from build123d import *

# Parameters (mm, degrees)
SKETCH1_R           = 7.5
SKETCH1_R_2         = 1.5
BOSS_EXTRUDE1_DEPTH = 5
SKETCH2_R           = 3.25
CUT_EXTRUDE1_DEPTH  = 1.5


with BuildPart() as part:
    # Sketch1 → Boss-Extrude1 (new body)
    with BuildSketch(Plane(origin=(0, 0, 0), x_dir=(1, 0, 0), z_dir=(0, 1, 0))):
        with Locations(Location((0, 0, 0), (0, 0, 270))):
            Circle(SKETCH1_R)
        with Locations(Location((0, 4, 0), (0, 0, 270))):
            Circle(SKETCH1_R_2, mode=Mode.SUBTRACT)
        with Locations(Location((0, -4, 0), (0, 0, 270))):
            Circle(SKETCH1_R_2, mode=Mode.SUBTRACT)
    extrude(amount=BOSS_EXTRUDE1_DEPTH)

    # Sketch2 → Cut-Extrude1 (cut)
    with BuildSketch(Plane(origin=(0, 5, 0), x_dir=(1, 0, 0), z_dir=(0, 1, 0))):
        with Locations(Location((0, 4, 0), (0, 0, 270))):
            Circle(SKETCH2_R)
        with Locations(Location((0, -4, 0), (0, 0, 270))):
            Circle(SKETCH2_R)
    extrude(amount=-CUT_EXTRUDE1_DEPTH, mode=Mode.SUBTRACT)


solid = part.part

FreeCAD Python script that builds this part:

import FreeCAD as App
import Part
import Sketcher
from FreeCAD import Vector

doc = App.newDocument("Part")
body = doc.addObject("PartDesign::Body", "Body")

sketch1 = body.newObject("Sketcher::SketchObject", "Sketch")
sketch1.AttachmentSupport = (doc.getObject("XZ_Plane"), [""])
sketch1.MapMode = "FlatFace"
sketch1.addGeometry(Part.Circle(Vector(0, 0, 0), Vector(0, 0, 1), 7.5), False)
sketch1.addGeometry(Part.Circle(Vector(0, -4, 0), Vector(0, 0, 1), 1.5), False)
sketch1.addGeometry(Part.Circle(Vector(0, 4, 0), Vector(0, 0, 1), 1.5), False)
sketch1.addConstraint(Sketcher.Constraint("Coincident", 0, 3, -1, 1))
sketch1.addConstraint(Sketcher.Constraint("Equal", 1, 2))
sketch1.addConstraint(Sketcher.Constraint("Symmetric", 1, 3, 2, 3, -1, 1))
sketch1.addConstraint(Sketcher.Constraint("PointOnObject", 1, 3, -2))
sketch1.addConstraint(Sketcher.Constraint("Diameter", 0, 15.0))
sketch1.addConstraint(Sketcher.Constraint("Diameter", 1, 3.0))
sketch1.addConstraint(Sketcher.Constraint("DistanceY", 1, 3, -1, 1, 4.0))
pad1 = body.newObject("PartDesign::Pad", "Pad")
pad1.Profile = sketch1
pad1.Length = 5
pad1.Reversed = True

sketch2 = body.newObject("Sketcher::SketchObject", "Sketch001")
sketch2.AttachmentSupport = (doc.getObject("XZ_Plane"), [""])
sketch2.MapMode = "FlatFace"
sketch2.AttachmentOffset = App.Placement(Vector(0, 0, -5), App.Rotation())
sketch2.addGeometry(Part.Circle(Vector(0, -4, 0), Vector(0, 0, 1), 3.25), False)
sketch2.addGeometry(Part.Circle(Vector(0, 4, 0), Vector(0, 0, 1), 3.25), False)
sketch2.addConstraint(Sketcher.Constraint("Equal", 0, 1))
sketch2.addConstraint(Sketcher.Constraint("Symmetric", 0, 3, 1, 3, -1, 1))
sketch2.addConstraint(Sketcher.Constraint("PointOnObject", 0, 3, -2))
sketch2.addConstraint(Sketcher.Constraint("Diameter", 0, 6.5))
sketch2.addConstraint(Sketcher.Constraint("DistanceY", 0, 3, -1, 1, 4.0))
pocket1 = body.newObject("PartDesign::Pocket", "Pocket")
pocket1.Profile = sketch2
pocket1.Length = 1.5
pocket1.Reversed = True

doc.recompute()
